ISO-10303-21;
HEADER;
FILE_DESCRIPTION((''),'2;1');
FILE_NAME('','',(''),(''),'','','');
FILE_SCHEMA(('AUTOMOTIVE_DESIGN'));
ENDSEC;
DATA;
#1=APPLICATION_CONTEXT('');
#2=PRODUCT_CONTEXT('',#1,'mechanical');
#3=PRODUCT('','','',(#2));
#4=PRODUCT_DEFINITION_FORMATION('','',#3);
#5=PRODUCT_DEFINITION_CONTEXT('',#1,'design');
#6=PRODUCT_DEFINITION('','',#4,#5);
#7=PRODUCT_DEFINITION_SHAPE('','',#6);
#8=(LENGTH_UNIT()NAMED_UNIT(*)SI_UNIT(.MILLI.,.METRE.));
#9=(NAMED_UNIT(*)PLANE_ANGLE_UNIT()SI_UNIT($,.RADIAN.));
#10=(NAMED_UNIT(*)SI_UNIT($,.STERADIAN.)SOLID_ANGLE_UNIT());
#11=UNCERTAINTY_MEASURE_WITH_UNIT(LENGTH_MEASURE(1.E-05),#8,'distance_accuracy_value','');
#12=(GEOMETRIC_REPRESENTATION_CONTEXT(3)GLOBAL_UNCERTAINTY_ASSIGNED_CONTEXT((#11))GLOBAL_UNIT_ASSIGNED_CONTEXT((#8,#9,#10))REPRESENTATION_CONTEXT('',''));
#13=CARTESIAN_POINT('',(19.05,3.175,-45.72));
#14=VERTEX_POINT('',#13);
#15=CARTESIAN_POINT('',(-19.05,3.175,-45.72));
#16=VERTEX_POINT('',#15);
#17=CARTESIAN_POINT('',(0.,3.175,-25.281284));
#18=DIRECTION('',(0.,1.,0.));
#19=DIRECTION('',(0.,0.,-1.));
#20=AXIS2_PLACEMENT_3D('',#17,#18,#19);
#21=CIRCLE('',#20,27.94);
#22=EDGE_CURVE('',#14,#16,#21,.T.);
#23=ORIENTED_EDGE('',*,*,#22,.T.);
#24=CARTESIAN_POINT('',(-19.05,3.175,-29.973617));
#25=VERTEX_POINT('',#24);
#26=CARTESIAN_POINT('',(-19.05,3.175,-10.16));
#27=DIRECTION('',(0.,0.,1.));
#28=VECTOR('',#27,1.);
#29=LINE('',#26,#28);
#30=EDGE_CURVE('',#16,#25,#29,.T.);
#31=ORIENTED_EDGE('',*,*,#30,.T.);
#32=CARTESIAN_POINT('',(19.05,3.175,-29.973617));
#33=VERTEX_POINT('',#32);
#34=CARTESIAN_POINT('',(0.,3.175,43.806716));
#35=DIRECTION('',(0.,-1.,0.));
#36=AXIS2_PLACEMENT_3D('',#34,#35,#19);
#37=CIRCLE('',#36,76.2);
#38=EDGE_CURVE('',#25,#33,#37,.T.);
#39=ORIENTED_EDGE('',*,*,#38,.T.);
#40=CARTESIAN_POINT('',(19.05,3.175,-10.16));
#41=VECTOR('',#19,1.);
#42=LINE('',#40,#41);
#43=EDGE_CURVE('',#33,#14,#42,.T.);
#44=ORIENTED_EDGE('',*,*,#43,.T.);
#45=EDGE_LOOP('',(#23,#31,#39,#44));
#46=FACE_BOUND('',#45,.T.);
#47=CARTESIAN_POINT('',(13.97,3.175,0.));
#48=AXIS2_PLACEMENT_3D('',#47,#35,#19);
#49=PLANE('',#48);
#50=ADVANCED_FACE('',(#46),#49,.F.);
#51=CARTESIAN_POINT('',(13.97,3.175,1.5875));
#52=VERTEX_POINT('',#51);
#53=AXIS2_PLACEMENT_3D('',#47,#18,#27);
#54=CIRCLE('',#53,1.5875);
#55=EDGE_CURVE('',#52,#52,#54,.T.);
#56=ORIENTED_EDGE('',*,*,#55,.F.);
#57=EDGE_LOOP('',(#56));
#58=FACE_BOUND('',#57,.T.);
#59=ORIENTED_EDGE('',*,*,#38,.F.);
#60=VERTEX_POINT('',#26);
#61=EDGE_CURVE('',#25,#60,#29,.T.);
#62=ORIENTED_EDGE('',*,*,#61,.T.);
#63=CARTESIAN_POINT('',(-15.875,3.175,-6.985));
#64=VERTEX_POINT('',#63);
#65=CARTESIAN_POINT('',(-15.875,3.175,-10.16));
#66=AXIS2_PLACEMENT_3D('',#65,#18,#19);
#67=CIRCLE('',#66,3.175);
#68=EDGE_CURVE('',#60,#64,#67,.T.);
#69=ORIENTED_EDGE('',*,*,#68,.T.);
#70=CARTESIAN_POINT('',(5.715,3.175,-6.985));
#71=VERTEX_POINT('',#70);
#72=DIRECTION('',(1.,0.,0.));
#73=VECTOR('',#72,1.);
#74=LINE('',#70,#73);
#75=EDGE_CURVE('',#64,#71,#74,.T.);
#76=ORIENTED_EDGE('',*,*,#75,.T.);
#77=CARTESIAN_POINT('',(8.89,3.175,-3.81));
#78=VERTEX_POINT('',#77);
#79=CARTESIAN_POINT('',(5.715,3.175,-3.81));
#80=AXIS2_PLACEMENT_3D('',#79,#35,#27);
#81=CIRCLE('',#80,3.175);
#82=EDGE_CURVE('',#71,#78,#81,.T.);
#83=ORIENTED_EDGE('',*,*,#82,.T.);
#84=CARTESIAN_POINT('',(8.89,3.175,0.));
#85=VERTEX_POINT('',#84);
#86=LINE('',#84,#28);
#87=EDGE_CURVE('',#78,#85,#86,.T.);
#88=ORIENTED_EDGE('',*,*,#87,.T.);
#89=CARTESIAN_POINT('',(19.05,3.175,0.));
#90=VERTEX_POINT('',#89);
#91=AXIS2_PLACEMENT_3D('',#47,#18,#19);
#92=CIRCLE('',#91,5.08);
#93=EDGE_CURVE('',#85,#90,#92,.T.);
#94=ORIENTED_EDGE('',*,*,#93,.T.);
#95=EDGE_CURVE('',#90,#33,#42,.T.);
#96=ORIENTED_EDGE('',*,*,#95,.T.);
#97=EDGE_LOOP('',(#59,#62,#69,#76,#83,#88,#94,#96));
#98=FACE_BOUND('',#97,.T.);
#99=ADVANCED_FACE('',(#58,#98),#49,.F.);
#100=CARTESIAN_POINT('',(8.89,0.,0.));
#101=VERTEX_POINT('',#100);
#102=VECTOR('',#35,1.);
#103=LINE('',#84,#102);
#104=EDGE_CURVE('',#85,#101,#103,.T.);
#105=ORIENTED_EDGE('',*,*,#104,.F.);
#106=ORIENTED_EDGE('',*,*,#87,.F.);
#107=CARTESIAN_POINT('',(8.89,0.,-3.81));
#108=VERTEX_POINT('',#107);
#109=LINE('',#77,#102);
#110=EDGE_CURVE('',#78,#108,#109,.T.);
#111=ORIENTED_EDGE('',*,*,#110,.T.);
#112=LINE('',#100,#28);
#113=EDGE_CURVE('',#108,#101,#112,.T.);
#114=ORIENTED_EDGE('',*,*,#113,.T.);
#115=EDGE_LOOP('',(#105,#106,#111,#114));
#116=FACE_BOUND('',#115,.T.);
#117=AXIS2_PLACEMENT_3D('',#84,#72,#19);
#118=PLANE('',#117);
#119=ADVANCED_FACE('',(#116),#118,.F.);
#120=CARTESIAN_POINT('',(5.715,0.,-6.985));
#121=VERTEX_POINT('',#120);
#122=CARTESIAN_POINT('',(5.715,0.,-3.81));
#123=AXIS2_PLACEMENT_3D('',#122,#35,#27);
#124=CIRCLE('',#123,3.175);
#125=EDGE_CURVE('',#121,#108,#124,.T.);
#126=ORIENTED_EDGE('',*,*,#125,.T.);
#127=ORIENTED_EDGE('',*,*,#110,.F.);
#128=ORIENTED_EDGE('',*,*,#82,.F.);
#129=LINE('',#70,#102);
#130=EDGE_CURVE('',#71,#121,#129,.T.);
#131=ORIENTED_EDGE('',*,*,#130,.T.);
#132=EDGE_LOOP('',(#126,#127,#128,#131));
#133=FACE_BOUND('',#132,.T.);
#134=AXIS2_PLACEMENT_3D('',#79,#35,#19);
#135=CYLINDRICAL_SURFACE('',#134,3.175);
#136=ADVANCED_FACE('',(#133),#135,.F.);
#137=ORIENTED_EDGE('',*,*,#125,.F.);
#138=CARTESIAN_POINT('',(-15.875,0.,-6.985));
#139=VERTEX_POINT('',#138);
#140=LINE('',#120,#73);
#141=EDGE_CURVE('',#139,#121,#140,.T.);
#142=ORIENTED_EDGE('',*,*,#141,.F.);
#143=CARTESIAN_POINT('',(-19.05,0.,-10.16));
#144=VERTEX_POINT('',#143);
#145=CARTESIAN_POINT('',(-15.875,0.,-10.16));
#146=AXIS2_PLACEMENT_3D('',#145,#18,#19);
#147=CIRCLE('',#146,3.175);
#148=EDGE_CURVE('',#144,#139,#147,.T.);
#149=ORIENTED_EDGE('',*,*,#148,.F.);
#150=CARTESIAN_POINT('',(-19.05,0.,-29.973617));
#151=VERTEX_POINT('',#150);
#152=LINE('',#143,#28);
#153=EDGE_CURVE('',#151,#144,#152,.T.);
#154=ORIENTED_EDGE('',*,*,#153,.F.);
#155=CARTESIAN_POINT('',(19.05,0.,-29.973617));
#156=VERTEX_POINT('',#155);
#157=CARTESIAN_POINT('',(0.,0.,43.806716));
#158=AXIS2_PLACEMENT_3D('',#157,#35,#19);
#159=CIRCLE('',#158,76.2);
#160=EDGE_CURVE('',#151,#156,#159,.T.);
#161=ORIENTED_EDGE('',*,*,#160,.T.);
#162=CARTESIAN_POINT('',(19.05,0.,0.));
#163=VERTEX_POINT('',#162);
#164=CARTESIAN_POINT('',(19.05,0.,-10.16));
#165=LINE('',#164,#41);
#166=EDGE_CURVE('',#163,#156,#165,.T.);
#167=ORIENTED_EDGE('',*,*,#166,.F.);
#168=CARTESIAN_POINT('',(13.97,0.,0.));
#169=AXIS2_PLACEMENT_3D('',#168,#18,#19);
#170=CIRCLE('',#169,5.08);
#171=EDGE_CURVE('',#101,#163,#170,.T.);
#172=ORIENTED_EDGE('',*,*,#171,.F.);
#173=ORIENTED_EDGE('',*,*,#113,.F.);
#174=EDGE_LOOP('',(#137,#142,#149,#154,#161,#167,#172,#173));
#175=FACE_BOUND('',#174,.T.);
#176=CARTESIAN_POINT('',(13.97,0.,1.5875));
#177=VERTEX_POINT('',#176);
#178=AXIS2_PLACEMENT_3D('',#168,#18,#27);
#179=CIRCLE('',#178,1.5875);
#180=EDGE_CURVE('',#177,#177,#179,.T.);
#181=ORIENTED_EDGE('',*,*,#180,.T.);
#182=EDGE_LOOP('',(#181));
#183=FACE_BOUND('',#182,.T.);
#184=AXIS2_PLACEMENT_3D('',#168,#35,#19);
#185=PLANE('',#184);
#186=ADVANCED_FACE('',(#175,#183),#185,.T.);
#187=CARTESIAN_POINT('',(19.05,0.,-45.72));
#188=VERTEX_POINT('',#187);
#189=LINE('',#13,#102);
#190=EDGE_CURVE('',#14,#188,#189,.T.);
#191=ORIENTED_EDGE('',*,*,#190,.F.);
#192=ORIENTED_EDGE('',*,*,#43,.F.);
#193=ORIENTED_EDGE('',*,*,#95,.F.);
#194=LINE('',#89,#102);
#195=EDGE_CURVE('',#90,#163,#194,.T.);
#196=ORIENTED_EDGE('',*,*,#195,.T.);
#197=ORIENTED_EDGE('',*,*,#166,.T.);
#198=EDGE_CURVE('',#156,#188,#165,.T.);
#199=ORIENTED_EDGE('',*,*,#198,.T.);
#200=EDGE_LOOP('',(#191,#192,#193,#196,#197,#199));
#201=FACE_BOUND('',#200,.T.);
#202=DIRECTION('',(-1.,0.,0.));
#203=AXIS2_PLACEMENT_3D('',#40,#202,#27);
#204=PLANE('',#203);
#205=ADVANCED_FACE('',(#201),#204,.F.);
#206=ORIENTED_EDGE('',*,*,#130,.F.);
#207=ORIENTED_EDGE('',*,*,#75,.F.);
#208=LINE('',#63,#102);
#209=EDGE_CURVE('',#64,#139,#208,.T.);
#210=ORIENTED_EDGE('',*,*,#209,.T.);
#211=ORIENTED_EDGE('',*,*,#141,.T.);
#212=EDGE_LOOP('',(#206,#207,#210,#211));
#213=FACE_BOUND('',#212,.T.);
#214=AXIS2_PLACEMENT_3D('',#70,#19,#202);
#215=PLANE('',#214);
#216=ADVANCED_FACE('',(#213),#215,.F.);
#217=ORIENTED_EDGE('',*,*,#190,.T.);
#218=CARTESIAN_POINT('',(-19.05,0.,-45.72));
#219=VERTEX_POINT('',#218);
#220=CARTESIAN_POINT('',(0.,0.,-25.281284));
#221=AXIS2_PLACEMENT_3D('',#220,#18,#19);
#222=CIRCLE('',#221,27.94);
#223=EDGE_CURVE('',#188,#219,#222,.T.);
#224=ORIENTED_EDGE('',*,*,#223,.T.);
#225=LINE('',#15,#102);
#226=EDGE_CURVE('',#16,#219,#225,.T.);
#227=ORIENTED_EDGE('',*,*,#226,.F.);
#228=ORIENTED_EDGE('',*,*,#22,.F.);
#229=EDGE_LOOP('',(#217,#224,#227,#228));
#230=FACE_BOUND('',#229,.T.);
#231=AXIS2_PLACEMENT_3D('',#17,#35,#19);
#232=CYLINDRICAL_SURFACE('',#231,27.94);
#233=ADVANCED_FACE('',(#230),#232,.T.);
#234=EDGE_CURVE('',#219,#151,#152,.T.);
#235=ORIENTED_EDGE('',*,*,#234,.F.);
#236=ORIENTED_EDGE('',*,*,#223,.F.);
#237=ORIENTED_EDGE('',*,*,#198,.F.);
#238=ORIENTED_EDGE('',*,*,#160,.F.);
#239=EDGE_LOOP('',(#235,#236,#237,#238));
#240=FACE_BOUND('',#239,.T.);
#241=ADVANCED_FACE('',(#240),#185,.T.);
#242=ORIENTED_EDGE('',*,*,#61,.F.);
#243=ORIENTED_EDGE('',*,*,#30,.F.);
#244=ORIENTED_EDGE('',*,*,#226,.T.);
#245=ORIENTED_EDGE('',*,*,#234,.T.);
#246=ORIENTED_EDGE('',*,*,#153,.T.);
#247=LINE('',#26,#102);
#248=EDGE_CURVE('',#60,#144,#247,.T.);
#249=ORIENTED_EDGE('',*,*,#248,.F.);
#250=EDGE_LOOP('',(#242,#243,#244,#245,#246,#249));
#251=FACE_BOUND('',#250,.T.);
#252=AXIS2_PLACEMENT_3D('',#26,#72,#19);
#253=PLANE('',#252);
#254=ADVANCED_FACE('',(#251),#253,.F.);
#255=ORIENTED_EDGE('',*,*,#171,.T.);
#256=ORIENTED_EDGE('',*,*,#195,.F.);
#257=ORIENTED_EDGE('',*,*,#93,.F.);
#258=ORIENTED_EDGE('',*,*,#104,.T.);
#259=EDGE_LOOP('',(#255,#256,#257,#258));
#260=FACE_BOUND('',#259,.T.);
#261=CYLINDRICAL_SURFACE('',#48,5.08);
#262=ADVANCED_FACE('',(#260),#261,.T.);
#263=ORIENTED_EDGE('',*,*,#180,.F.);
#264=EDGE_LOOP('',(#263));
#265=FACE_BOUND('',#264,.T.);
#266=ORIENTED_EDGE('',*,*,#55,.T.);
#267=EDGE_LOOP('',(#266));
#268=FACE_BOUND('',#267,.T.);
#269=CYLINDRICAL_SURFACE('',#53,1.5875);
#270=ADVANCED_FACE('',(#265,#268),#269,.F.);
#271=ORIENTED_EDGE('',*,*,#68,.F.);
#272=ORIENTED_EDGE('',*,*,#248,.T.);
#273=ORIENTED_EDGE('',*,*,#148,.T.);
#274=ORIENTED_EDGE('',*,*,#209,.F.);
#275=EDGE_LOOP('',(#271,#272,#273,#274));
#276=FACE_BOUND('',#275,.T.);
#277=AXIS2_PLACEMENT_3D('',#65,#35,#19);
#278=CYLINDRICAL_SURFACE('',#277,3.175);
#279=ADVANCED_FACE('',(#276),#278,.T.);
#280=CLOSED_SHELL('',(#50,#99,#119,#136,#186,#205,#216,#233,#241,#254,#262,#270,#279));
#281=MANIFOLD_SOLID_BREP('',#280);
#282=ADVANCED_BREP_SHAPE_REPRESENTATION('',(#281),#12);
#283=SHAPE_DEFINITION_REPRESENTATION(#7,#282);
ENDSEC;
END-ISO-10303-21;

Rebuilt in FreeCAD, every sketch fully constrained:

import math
import FreeCAD as App
import Part
import Sketcher

V = App.Vector
Q = App.Units.Quantity

doc = App.newDocument("Part")
body = doc.addObject("PartDesign::Body", "Body")

# Sketch on XZ plane
sketch1 = body.newObject("Sketcher::SketchObject", "Sketch")
sketch1.AttachmentSupport = (doc.getObject("XZ_Plane"), [""])
sketch1.MapMode = "FlatFace"
sketch1.addGeometry([
    Part.LineSegment(V(-19.05, -45.72, 0), V(-19.05, -10.16, 0)),  # 0
    Part.ArcOfCircle(Part.Circle(V(-15.875, -10.16, 0), V(0, 0, 1), 3.175), math.radians(90), math.radians(180)),  # 1
    Part.LineSegment(V(-15.875, -6.985, 0), V(5.715, -6.985, 0)),  # 2
    Part.ArcOfCircle(Part.Circle(V(5.715, -3.81, 0), V(0, 0, 1), 3.175), math.radians(-90), math.radians(0)),  # 3
    Part.LineSegment(V(8.89, -3.81, 0), V(8.89, 0, 0)),  # 4
    Part.ArcOfCircle(Part.Circle(V(13.97, 0, 0), V(0, 0, 1), 5.08), math.radians(0), math.radians(180)),  # 5
    Part.LineSegment(V(19.05, 0, 0), V(19.05, -45.72, 0)),  # 6
    Part.ArcOfCircle(Part.Circle(V(0, -25.281284, 0), V(0, 0, 1), 27.94), math.radians(-132.985886), math.radians(-47.014114)),  # 7
], False)
sketch1.addConstraint([
    Sketcher.Constraint("Tangent", 0, 2, 1, 2),
    Sketcher.Constraint("Tangent", 1, 1, 2, 1),
    Sketcher.Constraint("Tangent", 2, 2, 3, 1),
    Sketcher.Constraint("Tangent", 3, 2, 4, 1),
    Sketcher.Constraint("Tangent", 4, 2, 5, 2),
    Sketcher.Constraint("Tangent", 5, 1, 6, 1),
    Sketcher.Constraint("Coincident", 6, 2, 7, 2),
    Sketcher.Constraint("Coincident", 7, 1, 0, 1),
    Sketcher.Constraint("Vertical", 0),
    Sketcher.Constraint("Horizontal", 2),
    Sketcher.Constraint("Vertical", 4),
    Sketcher.Constraint("Vertical", 6),
    Sketcher.Constraint("Equal", 1, 3),
    Sketcher.Constraint("Symmetric", 6, 2, 7, 1, -2),
    Sketcher.Constraint("PointOnObject", 5, 3, -1),
    Sketcher.Constraint("Radius", 5, Q("0.2 in")),
    Sketcher.Constraint("Radius", 7, Q("1.1 in")),
    Sketcher.Constraint("DistanceY", 0, 1, 0, 2, Q("1.4 in")),
    Sketcher.Constraint("DistanceY", 6, 2, 6, 1, Q("1.8 in")),
    Sketcher.Constraint("Radius", 1, Q("0.125 in")),
    Sketcher.Constraint("DistanceX", 2, 1, 2, 2, Q("0.85 in")),
])
pad1 = body.newObject("PartDesign::Pad", "Pad")
pad1.Profile = sketch1
pad1.Length = Q("0.125 in")
pad1.Reversed = True

# Sketch on XZ plane
sketch2 = body.newObject("Sketcher::SketchObject", "Sketch001")
sketch2.AttachmentSupport = (doc.getObject("XZ_Plane"), [""])
sketch2.MapMode = "FlatFace"
sketch2.AttachmentOffset = App.Placement(V(0, 0, -0.125 * 25.4), App.Rotation())
sketch2.addGeometry(Part.Circle(V(13.97, 0, 0), V(0, 0, 1), 1.5875), False)
sketch2.addConstraint([
    Sketcher.Constraint("PointOnObject", 0, 3, -1),
    Sketcher.Constraint("Diameter", 0, Q("0.125 in")),
    Sketcher.Constraint("DistanceX", -1, 1, 0, 3, Q("0.55 in")),
])
doc.recompute()
hole = body.newObject("PartDesign::Hole", "Hole")
hole.Profile = sketch2
hole.ThreadType = "None"
hole.Diameter = Q("0.125 in")
hole.DepthType = "ThroughAll"
hole.Reversed = True

# Sketch on XZ plane
sketch3 = body.newObject("Sketcher::SketchObject", "Sketch002")
sketch3.AttachmentSupport = (doc.getObject("XZ_Plane"), [""])
sketch3.MapMode = "FlatFace"
sketch3.AttachmentOffset = App.Placement(V(0, 0, -0.125 * 25.4), App.Rotation())
sketch3.addGeometry(Part.Circle(V(-16.306688, -55.676688, 0), V(0, 0, 1), 1.5875), False)
sketch3.addConstraint([
    Sketcher.Constraint("Diameter", 0, Q("0.125 in")),
    Sketcher.Constraint("DistanceX", 0, 3, -1, 1, Q("16.306688 mm")),
    Sketcher.Constraint("DistanceY", 0, 3, -1, 1, Q("55.676688 mm")),
])
doc.recompute()
hole2 = body.newObject("PartDesign::Hole", "Hole001")
hole2.Profile = sketch3
hole2.ThreadType = "None"
hole2.Diameter = Q("0.125 in")
hole2.DepthType = "ThroughAll"
hole2.Reversed = True

doc.recompute()
